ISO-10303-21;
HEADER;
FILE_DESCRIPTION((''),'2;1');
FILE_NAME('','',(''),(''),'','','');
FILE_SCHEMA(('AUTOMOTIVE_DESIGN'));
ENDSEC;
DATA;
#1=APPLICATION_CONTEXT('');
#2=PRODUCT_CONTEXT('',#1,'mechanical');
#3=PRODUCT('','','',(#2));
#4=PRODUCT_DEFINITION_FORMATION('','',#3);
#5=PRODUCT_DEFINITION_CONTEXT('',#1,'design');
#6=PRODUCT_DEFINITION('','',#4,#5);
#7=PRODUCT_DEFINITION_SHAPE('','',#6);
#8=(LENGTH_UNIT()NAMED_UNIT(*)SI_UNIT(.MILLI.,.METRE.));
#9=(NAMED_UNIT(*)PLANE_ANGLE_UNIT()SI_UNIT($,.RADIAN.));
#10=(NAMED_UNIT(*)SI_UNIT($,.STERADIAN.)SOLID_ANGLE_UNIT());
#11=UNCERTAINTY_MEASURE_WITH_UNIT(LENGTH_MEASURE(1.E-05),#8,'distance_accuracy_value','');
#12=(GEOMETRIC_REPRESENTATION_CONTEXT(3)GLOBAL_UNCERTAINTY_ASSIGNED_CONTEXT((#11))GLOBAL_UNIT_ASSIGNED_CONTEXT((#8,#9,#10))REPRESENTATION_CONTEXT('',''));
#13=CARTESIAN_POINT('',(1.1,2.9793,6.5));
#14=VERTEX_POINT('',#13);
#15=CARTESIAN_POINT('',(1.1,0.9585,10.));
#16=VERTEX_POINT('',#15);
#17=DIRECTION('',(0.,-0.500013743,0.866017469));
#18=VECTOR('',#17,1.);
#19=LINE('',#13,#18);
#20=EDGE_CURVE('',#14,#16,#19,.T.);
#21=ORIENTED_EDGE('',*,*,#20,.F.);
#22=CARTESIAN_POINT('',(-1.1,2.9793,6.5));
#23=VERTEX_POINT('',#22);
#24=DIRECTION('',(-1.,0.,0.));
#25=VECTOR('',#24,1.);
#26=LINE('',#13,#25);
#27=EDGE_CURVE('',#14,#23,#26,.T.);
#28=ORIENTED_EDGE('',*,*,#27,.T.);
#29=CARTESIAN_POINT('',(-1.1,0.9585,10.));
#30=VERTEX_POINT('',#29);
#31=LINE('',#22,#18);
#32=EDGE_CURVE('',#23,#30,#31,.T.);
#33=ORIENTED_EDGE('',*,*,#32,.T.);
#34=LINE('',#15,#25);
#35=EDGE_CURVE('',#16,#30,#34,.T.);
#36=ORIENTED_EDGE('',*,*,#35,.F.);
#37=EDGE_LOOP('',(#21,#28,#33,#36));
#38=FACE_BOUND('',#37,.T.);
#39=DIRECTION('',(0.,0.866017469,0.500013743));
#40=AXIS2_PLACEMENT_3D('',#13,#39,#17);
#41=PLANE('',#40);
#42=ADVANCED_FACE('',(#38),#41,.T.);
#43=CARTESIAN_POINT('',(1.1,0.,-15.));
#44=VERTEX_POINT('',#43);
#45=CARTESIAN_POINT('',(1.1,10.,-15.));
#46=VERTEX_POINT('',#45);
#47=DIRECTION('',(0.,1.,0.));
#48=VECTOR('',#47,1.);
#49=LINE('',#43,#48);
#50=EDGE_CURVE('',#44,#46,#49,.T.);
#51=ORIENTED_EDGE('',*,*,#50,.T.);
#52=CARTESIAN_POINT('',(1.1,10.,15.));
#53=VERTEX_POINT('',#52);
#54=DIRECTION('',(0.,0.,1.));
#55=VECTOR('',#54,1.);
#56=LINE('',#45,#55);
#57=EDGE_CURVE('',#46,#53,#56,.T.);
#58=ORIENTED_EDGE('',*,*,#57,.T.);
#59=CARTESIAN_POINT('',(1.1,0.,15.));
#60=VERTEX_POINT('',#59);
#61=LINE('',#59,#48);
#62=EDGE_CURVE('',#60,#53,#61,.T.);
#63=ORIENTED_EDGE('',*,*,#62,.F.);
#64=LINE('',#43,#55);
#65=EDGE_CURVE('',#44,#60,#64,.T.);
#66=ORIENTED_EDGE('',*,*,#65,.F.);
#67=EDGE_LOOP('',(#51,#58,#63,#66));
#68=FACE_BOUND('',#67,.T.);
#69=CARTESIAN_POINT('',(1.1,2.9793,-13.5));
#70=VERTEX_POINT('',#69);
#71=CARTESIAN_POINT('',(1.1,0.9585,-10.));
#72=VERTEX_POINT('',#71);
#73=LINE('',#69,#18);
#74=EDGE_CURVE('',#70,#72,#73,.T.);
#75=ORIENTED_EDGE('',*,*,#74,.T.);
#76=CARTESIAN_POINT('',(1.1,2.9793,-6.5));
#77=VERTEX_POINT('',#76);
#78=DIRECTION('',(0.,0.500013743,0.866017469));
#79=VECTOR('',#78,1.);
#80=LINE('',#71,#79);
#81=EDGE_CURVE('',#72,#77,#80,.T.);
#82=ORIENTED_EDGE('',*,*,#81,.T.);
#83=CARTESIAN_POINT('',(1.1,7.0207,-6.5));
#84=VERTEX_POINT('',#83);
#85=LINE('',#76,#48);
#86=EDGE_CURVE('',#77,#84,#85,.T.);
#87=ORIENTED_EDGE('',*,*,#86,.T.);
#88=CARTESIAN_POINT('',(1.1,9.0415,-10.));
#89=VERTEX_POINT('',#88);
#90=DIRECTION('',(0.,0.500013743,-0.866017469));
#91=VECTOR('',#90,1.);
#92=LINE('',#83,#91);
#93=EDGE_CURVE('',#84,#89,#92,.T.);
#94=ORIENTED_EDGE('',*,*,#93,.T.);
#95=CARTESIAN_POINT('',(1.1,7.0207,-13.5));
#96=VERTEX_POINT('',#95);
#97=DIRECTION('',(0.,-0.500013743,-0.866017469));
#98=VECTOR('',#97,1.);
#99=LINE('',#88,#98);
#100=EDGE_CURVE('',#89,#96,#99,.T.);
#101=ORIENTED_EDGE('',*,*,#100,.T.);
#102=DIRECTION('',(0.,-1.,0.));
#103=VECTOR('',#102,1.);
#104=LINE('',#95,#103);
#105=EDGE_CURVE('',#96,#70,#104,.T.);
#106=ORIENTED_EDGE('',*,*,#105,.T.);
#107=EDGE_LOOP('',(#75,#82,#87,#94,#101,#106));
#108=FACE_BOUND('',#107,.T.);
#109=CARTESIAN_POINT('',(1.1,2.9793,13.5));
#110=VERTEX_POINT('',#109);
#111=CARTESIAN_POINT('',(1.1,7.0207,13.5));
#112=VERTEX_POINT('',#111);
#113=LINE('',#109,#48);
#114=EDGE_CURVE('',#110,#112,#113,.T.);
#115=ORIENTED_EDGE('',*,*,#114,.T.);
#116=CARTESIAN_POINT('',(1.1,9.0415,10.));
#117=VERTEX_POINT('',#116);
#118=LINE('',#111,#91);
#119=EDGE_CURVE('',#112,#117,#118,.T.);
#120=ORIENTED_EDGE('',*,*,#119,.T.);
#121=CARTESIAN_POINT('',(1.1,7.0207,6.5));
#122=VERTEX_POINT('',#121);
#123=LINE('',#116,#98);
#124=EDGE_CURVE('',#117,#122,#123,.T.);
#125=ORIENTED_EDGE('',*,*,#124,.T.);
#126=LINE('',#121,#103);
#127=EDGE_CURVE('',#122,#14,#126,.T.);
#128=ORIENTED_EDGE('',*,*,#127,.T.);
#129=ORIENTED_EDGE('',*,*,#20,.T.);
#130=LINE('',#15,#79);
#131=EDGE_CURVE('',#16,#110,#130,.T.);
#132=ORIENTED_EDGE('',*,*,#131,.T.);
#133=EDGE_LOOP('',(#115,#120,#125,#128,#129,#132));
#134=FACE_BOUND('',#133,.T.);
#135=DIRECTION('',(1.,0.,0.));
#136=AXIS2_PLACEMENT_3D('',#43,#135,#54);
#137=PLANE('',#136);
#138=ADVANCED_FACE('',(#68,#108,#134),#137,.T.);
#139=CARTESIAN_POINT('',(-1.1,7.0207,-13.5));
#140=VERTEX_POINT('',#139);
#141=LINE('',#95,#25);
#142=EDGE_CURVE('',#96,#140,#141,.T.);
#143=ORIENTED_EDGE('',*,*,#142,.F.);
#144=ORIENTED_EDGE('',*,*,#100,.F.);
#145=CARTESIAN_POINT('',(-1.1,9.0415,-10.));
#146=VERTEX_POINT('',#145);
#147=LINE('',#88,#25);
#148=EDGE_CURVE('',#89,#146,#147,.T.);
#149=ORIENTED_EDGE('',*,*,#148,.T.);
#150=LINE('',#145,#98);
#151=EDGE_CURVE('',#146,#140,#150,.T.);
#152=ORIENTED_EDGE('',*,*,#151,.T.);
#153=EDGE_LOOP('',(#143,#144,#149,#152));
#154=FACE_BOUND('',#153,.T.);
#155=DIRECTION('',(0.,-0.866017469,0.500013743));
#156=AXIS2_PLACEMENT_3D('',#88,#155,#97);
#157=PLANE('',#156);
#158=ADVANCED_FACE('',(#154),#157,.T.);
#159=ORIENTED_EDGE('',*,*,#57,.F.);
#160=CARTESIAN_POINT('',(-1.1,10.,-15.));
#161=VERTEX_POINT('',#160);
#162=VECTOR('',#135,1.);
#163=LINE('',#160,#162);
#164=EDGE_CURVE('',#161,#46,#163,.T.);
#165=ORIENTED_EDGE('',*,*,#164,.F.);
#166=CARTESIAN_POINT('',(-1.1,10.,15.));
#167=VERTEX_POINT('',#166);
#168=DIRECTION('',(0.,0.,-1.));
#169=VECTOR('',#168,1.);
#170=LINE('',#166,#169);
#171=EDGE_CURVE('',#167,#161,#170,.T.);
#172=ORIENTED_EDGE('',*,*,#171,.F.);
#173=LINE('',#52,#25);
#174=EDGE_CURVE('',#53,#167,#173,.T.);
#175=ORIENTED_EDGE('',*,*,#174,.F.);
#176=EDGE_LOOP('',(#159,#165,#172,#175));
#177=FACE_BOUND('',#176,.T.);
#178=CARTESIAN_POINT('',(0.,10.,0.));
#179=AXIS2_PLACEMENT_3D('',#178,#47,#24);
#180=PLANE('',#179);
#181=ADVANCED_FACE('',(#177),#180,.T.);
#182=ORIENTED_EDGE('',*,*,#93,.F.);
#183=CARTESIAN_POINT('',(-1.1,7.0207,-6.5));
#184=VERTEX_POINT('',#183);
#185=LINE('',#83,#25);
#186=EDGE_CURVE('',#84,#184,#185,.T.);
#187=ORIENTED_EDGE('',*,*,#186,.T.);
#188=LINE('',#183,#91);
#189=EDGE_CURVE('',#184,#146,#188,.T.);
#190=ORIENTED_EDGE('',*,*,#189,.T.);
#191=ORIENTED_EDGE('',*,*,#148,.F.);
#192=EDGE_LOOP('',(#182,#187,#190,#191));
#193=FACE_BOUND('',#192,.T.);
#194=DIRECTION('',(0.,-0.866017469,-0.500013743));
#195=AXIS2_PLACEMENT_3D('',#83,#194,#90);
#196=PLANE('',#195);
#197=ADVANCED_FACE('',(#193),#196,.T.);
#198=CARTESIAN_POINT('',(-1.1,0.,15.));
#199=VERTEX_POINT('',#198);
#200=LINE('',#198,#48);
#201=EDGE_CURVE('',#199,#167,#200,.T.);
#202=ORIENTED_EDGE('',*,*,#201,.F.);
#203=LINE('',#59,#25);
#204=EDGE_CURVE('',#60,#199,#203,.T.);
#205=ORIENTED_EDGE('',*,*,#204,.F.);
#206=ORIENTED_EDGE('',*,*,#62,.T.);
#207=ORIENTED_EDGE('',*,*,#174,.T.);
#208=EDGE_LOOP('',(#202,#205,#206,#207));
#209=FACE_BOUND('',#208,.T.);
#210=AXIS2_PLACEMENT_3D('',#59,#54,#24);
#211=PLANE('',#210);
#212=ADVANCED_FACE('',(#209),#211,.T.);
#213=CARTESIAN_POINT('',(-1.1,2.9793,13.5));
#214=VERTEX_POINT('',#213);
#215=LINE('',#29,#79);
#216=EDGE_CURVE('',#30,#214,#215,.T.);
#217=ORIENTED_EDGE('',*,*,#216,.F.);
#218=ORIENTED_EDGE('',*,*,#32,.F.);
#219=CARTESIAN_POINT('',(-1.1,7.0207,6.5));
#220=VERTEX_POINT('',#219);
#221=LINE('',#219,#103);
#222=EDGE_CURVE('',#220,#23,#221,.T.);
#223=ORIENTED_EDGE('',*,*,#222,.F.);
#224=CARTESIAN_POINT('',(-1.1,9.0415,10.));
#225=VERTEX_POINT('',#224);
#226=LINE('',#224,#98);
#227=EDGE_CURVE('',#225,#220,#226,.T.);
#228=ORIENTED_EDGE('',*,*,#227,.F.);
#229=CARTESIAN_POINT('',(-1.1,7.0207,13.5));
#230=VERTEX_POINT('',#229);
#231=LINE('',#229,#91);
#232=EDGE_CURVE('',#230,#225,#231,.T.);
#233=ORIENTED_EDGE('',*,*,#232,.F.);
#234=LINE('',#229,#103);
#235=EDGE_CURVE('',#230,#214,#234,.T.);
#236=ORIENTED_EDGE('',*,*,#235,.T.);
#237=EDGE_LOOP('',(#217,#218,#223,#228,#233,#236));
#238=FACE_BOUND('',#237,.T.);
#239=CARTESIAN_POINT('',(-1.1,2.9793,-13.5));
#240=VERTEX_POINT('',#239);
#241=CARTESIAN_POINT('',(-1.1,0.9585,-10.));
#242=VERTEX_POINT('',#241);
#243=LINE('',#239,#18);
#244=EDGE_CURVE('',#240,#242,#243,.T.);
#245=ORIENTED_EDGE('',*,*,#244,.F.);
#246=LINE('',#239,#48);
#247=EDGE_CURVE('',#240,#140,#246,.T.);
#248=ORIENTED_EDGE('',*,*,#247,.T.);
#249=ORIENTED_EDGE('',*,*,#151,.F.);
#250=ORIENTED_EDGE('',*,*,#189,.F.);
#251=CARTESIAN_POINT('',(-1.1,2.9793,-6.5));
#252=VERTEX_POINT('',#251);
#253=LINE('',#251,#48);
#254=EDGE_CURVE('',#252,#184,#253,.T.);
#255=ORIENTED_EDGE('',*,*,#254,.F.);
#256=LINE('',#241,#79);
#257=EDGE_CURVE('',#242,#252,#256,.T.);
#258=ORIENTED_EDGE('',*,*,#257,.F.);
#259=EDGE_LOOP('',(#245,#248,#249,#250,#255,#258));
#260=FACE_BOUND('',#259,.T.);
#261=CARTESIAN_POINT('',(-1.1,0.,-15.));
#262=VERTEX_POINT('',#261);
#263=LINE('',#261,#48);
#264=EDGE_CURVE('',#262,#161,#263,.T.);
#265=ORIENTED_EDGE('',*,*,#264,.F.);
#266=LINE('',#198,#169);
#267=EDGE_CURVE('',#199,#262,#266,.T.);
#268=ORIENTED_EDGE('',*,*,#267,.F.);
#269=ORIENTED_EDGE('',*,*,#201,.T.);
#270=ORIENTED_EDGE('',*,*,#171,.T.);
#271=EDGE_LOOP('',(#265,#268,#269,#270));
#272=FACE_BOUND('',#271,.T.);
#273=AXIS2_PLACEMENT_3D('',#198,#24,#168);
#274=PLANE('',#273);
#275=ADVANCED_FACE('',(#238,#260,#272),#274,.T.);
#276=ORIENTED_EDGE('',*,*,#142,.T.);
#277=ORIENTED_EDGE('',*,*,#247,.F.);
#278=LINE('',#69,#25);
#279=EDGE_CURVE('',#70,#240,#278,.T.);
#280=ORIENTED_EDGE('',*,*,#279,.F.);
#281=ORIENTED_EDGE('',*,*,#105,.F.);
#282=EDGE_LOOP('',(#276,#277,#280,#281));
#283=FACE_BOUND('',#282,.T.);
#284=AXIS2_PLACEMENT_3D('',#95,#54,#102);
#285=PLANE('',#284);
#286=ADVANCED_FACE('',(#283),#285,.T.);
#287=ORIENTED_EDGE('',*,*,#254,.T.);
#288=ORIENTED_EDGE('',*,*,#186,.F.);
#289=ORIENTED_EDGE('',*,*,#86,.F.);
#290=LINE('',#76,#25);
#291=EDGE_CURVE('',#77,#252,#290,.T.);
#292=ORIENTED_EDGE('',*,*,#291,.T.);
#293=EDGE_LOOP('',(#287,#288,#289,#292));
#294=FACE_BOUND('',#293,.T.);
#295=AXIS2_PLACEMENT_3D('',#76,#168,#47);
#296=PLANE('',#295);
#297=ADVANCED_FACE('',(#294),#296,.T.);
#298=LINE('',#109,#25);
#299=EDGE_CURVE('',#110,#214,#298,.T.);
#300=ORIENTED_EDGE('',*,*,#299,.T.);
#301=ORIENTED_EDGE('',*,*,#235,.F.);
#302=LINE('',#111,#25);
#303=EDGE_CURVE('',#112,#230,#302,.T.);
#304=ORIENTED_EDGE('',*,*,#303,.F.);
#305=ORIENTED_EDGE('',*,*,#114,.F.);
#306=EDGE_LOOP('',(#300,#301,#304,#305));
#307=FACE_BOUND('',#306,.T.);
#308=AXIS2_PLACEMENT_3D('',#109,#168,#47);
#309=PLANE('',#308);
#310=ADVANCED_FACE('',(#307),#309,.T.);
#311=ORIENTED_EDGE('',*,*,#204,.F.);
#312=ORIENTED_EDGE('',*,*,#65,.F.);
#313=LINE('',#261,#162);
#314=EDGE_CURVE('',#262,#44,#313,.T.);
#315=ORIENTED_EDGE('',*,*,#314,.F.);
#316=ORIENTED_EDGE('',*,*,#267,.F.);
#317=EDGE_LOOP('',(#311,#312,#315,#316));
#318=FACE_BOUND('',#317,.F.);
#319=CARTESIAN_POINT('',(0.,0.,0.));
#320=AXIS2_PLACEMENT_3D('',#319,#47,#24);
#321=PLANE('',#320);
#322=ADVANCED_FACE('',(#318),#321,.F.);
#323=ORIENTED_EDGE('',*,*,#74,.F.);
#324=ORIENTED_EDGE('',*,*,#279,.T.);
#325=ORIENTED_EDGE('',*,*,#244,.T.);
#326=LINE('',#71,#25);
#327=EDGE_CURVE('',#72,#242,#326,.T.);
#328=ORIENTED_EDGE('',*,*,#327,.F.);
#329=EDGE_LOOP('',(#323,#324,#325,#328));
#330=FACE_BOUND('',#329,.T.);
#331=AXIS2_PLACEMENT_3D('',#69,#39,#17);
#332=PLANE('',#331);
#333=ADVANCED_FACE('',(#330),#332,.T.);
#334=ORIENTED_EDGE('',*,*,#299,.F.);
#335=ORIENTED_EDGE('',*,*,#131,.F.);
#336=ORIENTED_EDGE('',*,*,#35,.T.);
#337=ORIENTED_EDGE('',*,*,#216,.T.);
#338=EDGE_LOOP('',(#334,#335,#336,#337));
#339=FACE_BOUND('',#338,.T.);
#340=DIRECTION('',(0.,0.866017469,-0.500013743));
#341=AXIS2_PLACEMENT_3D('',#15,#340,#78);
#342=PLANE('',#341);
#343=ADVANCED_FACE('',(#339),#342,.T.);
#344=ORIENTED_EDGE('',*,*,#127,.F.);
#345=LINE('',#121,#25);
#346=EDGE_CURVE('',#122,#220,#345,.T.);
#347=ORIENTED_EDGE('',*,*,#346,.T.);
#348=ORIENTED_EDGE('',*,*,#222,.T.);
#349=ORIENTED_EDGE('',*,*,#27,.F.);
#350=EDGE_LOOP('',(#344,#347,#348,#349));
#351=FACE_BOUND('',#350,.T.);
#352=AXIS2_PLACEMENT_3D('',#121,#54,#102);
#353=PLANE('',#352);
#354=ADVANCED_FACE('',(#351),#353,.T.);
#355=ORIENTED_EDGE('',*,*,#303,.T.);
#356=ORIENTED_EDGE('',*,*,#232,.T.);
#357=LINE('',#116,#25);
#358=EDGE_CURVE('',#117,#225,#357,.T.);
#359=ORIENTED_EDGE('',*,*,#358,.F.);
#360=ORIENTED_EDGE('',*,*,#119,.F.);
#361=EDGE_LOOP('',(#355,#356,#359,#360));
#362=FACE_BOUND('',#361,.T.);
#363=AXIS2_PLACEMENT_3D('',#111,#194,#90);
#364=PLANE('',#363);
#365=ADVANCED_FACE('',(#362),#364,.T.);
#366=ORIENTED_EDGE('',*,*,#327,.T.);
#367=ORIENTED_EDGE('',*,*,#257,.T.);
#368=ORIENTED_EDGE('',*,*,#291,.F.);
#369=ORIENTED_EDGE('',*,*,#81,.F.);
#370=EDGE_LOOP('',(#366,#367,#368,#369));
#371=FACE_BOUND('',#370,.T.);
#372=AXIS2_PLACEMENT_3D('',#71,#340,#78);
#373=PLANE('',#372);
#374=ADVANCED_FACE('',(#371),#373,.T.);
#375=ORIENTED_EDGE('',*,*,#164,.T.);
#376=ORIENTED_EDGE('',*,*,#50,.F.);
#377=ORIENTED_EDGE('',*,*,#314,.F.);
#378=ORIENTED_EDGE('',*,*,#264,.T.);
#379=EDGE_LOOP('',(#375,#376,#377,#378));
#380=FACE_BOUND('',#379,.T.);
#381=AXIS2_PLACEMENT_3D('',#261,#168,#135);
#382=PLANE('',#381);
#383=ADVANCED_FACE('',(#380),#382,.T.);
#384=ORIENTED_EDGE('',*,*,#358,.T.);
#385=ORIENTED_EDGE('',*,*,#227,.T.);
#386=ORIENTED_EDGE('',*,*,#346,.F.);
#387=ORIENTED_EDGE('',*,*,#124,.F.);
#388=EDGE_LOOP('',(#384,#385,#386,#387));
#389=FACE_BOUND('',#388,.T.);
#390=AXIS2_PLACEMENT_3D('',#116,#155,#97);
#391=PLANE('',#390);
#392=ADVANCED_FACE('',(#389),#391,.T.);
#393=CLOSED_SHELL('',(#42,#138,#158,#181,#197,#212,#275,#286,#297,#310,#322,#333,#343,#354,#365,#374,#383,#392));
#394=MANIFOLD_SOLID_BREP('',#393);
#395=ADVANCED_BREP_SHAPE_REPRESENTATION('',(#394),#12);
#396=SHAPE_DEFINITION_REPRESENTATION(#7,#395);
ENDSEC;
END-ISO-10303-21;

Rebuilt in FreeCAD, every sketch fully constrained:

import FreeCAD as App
import Part
import Sketcher

V = App.Vector
Q = App.Units.Quantity

doc = App.newDocument("Part")
params = doc.addObject("Spreadsheet::Sheet", "Params")
for row, (alias, value) in enumerate([
    ("sketch1_height", "30 mm"),
    ("sketch1_width", "2.2 mm"),
    ("pad1_length", "10 mm"),
    ("pocket1_length", "2.2 mm"),
], start=1):
    params.set(f"A{row}", alias)
    params.set(f"B{row}", "=" + value)
    params.setAlias(f"B{row}", alias)

body = doc.addObject("PartDesign::Body", "Body")

sketch1 = doc.addObject("Sketcher::SketchObject", "Sketch")
body.addObject(sketch1)
sketch1.AttachmentSupport = (doc.XZ_Plane, [""])
sketch1.MapMode = "FlatFace"
sketch1.addGeometry([
    Part.LineSegment(V(-1.1, 15, 0), V(1.1, 15, 0)),
    Part.LineSegment(V(1.1, 15, 0), V(1.1, -15, 0)),
    Part.LineSegment(V(1.1, -15, 0), V(-1.1, -15, 0)),
    Part.LineSegment(V(-1.1, -15, 0), V(-1.1, 15, 0)),
], False)
sketch1.addConstraint([
    Sketcher.Constraint("Coincident", 0, 2, 1, 1),
    Sketcher.Constraint("Coincident", 1, 2, 2, 1),
    Sketcher.Constraint("Coincident", 2, 2, 3, 1),
    Sketcher.Constraint("Coincident", 3, 2, 0, 1),
    Sketcher.Constraint("Horizontal", 0),
    Sketcher.Constraint("Vertical", 1),
    Sketcher.Constraint("Horizontal", 2),
    Sketcher.Constraint("Vertical", 3),
    Sketcher.Constraint("Symmetric", 0, 2, 2, 2, -1, 1),
    Sketcher.Constraint("DistanceY", 1, 2, 1, 1, 30.0),
    Sketcher.Constraint("DistanceX", 0, 1, 0, 2, 2.2),
])
sketch1.setExpression("Constraints[9]", "Params.sketch1_height")
sketch1.setExpression("Constraints[10]", "Params.sketch1_width")
pad1 = doc.addObject("PartDesign::Pad", "Pad")
body.addObject(pad1)
pad1.Profile = sketch1
pad1.setExpression("Length", "Params.pad1_length")
pad1.Reversed = True

sketch2 = doc.addObject("Sketcher::SketchObject", "Sketch001")
body.addObject(sketch2)
sketch2.AttachmentSupport = (doc.YZ_Plane, [""])
sketch2.MapMode = "FlatFace"
sketch2.AttachmentOffset = App.Placement(V(0, 0, 1.1), App.Rotation())
sketch2.addGeometry([
    Part.LineSegment(V(7, 6.5, 0), V(9, 10, 0)),
    Part.LineSegment(V(9, 10, 0), V(7, 13.5, 0)),
    Part.LineSegment(V(7, 13.5, 0), V(3, 13.5, 0)),
    Part.LineSegment(V(3, 13.5, 0), V(1, 10, 0)),
    Part.LineSegment(V(1, 10, 0), V(3, 6.5, 0)),
    Part.LineSegment(V(3, 6.5, 0), V(7, 6.5, 0)),
    Part.LineSegment(V(7, -13.5, 0), V(9, -10, 0)),
    Part.LineSegment(V(9, -10, 0), V(7, -6.5, 0)),
    Part.LineSegment(V(7, -6.5, 0), V(3, -6.5, 0)),
    Part.LineSegment(V(3, -6.5, 0), V(1, -10, 0)),
    Part.LineSegment(V(1, -10, 0), V(3, -13.5, 0)),
    Part.LineSegment(V(3, -13.5, 0), V(7, -13.5, 0)),
], False)
sketch2.addConstraint([
    Sketcher.Constraint("Coincident", 0, 2, 1, 1),
    Sketcher.Constraint("Coincident", 1, 2, 2, 1),
    Sketcher.Constraint("Coincident", 2, 2, 3, 1),
    Sketcher.Constraint("Coincident", 3, 2, 4, 1),
    Sketcher.Constraint("Coincident", 4, 2, 5, 1),
    Sketcher.Constraint("Coincident", 5, 2, 0, 1),
    Sketcher.Constraint("Coincident", 6, 2, 7, 1),
    Sketcher.Constraint("Coincident", 7, 2, 8, 1),
    Sketcher.Constraint("Coincident", 8, 2, 9, 1),
    Sketcher.Constraint("Coincident", 9, 2, 10, 1),
    Sketcher.Constraint("Coincident", 10, 2, 11, 1),
    Sketcher.Constraint("Coincident", 11, 2, 6, 1),
    Sketcher.Constraint("Horizontal", 2),
    Sketcher.Constraint("Horizontal", 5),
    Sketcher.Constraint("Horizontal", 8),
    Sketcher.Constraint("Horizontal", 11),
    Sketcher.Constraint("Symmetric", 0, 2, 6, 2, -1),
    Sketcher.Constraint("Symmetric", 5, 2, 7, 2, -1),
    Sketcher.Constraint("Symmetric", 3, 2, 9, 2, -1),
    Sketcher.Constraint("Symmetric", 2, 2, 10, 2, -1),
    Sketcher.Constraint("Parallel", 0, 3),
    Sketcher.Constraint("Parallel", 1, 4),
    Sketcher.Constraint("Parallel", 3, 6),
    Sketcher.Constraint("Parallel", 4, 7),
    Sketcher.Constraint("Parallel", 6, 9),
    Sketcher.Constraint("Horizontal", 0, 2, 3, 2),
    Sketcher.Constraint("Vertical", 2, 2, 4, 2),
    Sketcher.Constraint("DistanceY", 4, 2, 2, 2, 7.0),
    Sketcher.Constraint("Angle", 0, Q("59.999 deg")),
    Sketcher.Constraint("DistanceY", -1, 1, 0, 2, 10.0),
    Sketcher.Constraint("DistanceX", 2, 2, 2, 1, 4.0414),
    Sketcher.Constraint("DistanceX", -1, 1, 0, 2, 9.0415),
])
pocket1 = doc.addObject("PartDesign::Pocket", "Pocket")
body.addObject(pocket1)
pocket1.Profile = sketch2
pocket1.setExpression("Length", "Params.pocket1_length")

doc.recompute()
